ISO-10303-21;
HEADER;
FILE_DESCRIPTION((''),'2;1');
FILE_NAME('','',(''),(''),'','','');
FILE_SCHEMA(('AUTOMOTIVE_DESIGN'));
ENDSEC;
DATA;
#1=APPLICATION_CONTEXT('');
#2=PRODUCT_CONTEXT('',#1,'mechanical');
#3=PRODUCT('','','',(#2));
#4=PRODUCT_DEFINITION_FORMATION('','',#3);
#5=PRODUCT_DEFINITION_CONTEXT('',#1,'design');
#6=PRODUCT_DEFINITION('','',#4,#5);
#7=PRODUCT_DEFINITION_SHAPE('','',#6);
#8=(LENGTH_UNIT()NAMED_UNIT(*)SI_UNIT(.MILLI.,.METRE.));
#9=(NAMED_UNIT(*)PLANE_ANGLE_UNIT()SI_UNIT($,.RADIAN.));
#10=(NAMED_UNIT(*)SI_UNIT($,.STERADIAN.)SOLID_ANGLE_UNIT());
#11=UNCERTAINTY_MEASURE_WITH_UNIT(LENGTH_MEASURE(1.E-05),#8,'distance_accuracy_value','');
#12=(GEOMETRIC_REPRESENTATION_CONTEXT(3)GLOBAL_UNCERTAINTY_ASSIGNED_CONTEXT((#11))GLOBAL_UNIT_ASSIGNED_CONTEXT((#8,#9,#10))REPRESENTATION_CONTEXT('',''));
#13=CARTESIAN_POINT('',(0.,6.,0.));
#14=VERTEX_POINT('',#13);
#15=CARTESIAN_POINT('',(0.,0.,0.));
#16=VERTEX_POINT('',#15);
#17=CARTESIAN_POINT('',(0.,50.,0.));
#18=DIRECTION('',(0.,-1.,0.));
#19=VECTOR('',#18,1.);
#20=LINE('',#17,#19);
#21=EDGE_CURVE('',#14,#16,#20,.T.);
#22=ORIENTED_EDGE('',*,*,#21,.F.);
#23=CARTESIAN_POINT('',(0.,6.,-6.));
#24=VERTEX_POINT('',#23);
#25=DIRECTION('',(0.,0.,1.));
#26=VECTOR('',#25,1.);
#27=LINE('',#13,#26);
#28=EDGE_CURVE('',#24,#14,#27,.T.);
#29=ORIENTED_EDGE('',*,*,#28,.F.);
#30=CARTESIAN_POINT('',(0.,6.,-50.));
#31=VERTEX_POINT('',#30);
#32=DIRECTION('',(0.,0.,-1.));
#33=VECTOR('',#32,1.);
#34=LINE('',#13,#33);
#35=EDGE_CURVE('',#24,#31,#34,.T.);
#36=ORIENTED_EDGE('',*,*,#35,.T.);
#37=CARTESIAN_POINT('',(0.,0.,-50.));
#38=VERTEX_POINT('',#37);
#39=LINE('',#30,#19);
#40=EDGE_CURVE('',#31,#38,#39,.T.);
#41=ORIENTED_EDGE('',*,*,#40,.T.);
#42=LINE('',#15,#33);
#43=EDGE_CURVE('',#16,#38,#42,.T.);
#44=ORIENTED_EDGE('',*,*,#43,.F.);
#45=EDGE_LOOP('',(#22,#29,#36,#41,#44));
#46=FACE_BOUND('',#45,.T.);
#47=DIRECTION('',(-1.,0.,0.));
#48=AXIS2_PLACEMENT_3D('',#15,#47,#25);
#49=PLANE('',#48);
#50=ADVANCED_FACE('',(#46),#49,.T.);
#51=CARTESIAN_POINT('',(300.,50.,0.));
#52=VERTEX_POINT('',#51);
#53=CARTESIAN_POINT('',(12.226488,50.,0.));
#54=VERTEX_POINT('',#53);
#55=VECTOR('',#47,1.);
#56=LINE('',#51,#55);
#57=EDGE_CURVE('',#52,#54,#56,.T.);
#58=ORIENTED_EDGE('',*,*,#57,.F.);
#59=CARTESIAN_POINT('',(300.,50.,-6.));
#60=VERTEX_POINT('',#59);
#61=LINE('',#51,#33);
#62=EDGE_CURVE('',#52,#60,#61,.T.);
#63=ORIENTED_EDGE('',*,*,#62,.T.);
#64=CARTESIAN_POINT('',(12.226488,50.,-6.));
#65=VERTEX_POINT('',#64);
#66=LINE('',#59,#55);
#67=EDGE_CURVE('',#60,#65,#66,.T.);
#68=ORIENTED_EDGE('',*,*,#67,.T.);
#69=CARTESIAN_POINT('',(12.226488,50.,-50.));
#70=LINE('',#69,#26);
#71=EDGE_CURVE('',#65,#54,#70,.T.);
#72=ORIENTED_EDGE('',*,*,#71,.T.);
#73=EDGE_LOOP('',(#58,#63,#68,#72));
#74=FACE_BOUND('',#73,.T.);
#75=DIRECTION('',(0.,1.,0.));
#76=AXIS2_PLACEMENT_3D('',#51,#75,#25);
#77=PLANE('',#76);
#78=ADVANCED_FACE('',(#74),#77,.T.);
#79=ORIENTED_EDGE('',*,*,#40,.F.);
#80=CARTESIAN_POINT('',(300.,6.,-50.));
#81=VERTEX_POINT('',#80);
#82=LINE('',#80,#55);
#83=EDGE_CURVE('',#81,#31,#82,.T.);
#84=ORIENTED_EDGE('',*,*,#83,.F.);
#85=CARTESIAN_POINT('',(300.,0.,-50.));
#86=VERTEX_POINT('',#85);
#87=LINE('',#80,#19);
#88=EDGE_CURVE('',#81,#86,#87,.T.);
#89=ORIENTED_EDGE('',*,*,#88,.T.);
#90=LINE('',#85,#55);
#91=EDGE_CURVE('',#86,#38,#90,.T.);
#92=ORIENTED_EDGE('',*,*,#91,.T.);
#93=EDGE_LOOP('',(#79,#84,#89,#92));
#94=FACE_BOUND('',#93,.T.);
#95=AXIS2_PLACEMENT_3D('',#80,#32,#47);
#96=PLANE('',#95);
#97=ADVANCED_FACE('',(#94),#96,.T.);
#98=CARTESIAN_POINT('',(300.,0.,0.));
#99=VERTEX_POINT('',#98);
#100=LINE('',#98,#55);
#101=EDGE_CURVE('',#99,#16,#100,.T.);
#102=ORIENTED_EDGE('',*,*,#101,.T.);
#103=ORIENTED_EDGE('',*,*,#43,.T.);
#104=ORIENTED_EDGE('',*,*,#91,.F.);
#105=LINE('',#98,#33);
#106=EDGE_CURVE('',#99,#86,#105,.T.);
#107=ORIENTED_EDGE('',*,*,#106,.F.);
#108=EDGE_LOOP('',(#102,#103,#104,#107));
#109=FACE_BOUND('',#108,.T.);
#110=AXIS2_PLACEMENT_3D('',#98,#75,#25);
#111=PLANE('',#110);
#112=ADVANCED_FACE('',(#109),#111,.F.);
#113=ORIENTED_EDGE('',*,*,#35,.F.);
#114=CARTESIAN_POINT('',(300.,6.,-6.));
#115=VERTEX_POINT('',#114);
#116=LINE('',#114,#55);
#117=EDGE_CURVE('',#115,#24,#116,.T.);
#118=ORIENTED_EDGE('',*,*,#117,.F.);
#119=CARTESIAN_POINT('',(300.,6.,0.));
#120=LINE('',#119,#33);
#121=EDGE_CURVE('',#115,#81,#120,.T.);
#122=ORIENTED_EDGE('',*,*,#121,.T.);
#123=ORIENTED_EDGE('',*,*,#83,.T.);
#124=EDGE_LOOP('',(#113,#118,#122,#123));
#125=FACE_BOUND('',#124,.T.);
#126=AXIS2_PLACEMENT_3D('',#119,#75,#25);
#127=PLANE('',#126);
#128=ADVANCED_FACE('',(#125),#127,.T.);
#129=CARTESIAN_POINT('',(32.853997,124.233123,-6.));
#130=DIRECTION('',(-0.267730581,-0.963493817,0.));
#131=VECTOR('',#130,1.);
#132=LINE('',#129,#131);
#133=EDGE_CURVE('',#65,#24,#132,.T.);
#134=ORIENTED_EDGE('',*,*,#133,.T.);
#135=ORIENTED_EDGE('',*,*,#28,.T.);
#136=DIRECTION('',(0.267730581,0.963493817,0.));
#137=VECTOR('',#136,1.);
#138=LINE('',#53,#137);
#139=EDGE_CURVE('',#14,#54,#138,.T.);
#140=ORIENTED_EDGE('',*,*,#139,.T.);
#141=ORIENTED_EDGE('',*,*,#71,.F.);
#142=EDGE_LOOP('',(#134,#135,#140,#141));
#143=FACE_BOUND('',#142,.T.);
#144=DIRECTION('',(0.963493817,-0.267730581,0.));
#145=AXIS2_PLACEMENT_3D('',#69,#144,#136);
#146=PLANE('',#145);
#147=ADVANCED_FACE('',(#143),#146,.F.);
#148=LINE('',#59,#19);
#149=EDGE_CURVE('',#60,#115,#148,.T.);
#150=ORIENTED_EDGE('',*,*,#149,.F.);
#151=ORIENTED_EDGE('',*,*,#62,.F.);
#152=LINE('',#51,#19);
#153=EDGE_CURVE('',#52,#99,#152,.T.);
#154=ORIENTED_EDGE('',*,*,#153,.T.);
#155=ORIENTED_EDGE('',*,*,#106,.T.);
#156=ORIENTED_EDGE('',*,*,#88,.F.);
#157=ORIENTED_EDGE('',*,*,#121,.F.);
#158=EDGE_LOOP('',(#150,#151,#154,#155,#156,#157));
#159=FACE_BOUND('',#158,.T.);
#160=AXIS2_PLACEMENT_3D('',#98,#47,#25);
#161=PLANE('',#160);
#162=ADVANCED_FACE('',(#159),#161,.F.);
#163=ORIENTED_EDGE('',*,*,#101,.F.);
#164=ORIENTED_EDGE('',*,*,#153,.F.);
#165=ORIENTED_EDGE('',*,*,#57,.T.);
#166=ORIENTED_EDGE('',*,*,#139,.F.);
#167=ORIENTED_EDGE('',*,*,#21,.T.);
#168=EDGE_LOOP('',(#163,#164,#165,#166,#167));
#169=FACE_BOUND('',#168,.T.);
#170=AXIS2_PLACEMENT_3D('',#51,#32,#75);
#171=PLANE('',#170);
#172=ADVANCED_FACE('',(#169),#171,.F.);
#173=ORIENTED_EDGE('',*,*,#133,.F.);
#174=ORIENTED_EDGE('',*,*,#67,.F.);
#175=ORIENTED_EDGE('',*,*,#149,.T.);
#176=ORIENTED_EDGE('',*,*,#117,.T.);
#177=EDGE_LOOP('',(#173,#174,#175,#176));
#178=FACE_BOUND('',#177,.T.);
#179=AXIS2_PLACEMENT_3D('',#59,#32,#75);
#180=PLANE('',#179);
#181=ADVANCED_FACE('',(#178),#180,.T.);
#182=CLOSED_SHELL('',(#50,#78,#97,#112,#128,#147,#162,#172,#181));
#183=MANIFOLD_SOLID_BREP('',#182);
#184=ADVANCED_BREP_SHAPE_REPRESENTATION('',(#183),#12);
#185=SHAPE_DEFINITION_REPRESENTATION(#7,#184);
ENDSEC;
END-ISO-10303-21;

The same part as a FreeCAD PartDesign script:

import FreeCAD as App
import Part
import Sketcher
from FreeCAD import Vector
Q = App.Units.Quantity

doc = App.newDocument("Part")
params = doc.addObject("Spreadsheet::Sheet", "Params")
for row, (alias, value) in enumerate([
    ("sketch1_width", "50 mm"),
    ("sketch1_width2", "6 mm"),
    ("pad1_length", "300 mm"),
    ("sketch2_height", "44 mm"),
], start=1):
    params.set(f"A{row}", alias)
    params.set(f"B{row}", "=" + value)
    params.setAlias(f"B{row}", alias)

body = doc.addObject("PartDesign::Body", "Body")

# Sketch on YZ plane
sketch1 = body.newObject("Sketcher::SketchObject", "Sketch")
sketch1.AttachmentSupport = (doc.getObject("YZ_Plane"), [""])
sketch1.MapMode = "FlatFace"
sketch1.addGeometry([
    Part.LineSegment(Vector(50, 0, 0), Vector(0, 0, 0)),  # 0
    Part.LineSegment(Vector(0, 0, 0), Vector(0, -50, 0)),  # 1
    Part.LineSegment(Vector(0, -50, 0), Vector(6, -50, 0)),  # 2
    Part.LineSegment(Vector(6, -50, 0), Vector(6, -6, 0)),  # 3
    Part.LineSegment(Vector(6, -6, 0), Vector(50, -6, 0)),  # 4
    Part.LineSegment(Vector(50, -6, 0), Vector(50, 0, 0)),  # 5
], False)
sketch1.addConstraint([
    Sketcher.Constraint("Coincident", 0, 2, 1, 1),
    Sketcher.Constraint("Coincident", 1, 2, 2, 1),
    Sketcher.Constraint("Coincident", 2, 2, 3, 1),
    Sketcher.Constraint("Coincident", 3, 2, 4, 1),
    Sketcher.Constraint("Coincident", 4, 2, 5, 1),
    Sketcher.Constraint("Coincident", 5, 2, 0, 1),
    Sketcher.Constraint("Horizontal", 0),
    Sketcher.Constraint("Vertical", 1),
    Sketcher.Constraint("Horizontal", 2),
    Sketcher.Constraint("Vertical", 3),
    Sketcher.Constraint("Horizontal", 4),
    Sketcher.Constraint("Vertical", 5),
    Sketcher.Constraint("Coincident", 0, 2, -1, 1),
    Sketcher.Constraint("Equal", 0, 1),
    Sketcher.Constraint("Equal", 4, 3),
    Sketcher.Constraint("DistanceX", 0, 2, 0, 1, Q("50 mm")),
    Sketcher.Constraint("DistanceX", 2, 1, 2, 2, Q("6 mm")),
])
sketch1.setExpression("Constraints[15]", "Params.sketch1_width")
sketch1.setExpression("Constraints[16]", "Params.sketch1_width2")
pad1 = body.newObject("PartDesign::Pad", "Pad")
pad1.Profile = sketch1
pad1.setExpression("Length", "Params.pad1_length")

# Sketch on XY plane
sketch2 = body.newObject("Sketcher::SketchObject", "Sketch001")
sketch2.AttachmentSupport = (doc.getObject("XY_Plane"), [""])
sketch2.MapMode = "FlatFace"
sketch2.addGeometry([
    Part.LineSegment(Vector(12, 50, 0), Vector(0, 50, 0)),
    Part.LineSegment(Vector(0, 50, 0), Vector(0, 6, 0)),
    Part.LineSegment(Vector(0, 6, 0), Vector(12, 50, 0)),
], False)
sketch2.addConstraint([
    Sketcher.Constraint("Coincident", 0, 2, 1, 1),
    Sketcher.Constraint("Coincident", 1, 2, 2, 1),
    Sketcher.Constraint("Coincident", 2, 2, 0, 1),
    Sketcher.Constraint("Horizontal", 0),
    Sketcher.Constraint("Vertical", 1),
    Sketcher.Constraint("PointOnObject", 0, 2, -2),
    Sketcher.Constraint("DistanceY", 1, 2, 1, 1, Q("44 mm")),
    Sketcher.Constraint("DistanceY", -1, 1, 0, 2, Q("50 mm")),
    Sketcher.Constraint("DistanceX", 0, 2, 0, 1, Q("12.226488 mm")),
])
sketch2.setExpression("Constraints[6]", "Params.sketch2_height")
pocket1 = body.newObject("PartDesign::Pocket", "Pocket")
pocket1.Profile = sketch2
pocket1.Type = "ThroughAll"

doc.recompute()
